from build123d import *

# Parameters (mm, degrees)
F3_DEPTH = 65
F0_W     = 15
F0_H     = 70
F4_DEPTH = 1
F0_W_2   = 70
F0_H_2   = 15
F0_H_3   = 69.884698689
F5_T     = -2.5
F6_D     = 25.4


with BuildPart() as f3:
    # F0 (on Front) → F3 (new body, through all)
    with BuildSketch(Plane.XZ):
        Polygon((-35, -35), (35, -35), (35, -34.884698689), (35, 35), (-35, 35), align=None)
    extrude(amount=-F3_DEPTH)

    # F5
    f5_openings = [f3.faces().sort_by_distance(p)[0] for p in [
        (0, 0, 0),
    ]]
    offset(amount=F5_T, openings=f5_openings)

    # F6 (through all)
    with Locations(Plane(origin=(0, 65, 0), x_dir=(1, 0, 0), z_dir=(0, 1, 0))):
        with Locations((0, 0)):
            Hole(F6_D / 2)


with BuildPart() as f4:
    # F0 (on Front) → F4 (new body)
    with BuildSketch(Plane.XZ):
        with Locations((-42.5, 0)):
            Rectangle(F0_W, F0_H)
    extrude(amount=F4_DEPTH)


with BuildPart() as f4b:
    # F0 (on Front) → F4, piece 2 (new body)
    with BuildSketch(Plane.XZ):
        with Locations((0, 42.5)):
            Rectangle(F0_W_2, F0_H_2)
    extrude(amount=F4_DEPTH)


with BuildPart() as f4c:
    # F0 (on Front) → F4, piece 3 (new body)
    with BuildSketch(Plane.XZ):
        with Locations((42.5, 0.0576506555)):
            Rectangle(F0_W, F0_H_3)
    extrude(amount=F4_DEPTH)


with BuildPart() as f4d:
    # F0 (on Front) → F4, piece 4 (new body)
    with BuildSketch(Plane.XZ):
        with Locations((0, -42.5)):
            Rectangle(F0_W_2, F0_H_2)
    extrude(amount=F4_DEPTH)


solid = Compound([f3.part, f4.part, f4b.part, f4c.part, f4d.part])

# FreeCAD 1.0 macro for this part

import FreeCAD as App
import Part
import Sketcher
from FreeCAD import Vector


def faces_at(feature, points):
    """Names of the faces that lie closest to the given points."""
    faces = feature.Shape.Faces
    near = lambda p: min(range(len(faces)), key=lambda i: faces[i].distToShape(Part.Vertex(*p))[0])
    return sorted({f"Face{near(p) + 1}" for p in points})


def add_polygon(sketch, points):
    """Adds a closed chain of lines whose ends are joined by coincident constraints."""
    first, n = sketch.GeometryCount, len(points)
    for a, b in zip(points, points[1:] + points[:1]):
        sketch.addGeometry(Part.LineSegment(App.Vector(*a, 0), App.Vector(*b, 0)), False)
    for i in range(n):
        sketch.addConstraint(Sketcher.Constraint("Coincident", first + i, 2, first + (i + 1) % n, 1))

doc = App.newDocument("Part")
body = doc.addObject("PartDesign::Body", "Body")

# Sketch on XZ plane
sketch1 = body.newObject("Sketcher::SketchObject", "Sketch")
sketch1.AttachmentSupport = (doc.getObject("XZ_Plane"), [""])
sketch1.MapMode = "FlatFace"
add_polygon(sketch1, [(-35, -35), (35, -35), (35, 35), (-35, 35)])  # lines 0-3
sketch1.addConstraint(Sketcher.Constraint("Horizontal", 0))
sketch1.addConstraint(Sketcher.Constraint("Vertical", 1))
sketch1.addConstraint(Sketcher.Constraint("Horizontal", 2))
sketch1.addConstraint(Sketcher.Constraint("Vertical", 3))
sketch1.addConstraint(Sketcher.Constraint("Symmetric", 0, 2, 2, 2, -1, 1))
sketch1.addConstraint(Sketcher.Constraint("Equal", 2, 1))
sketch1.addConstraint(Sketcher.Constraint("DistanceX", 0, 1, 0, 2, 70.0))
pad1 = body.newObject("PartDesign::Pad", "Pad")
pad1.Profile = sketch1
pad1.Length = 65
pad1.Reversed = True
doc.recompute()

thickness = body.newObject("PartDesign::Thickness", "Thickness")
thickness.Base = (pad1, faces_at(pad1, [(0, 0, 0)]))
thickness.Value = 2.5
thickness.Reversed = True
thickness.Join = "Arc"

# Sketch on XZ plane
sketch2 = body.newObject("Sketcher::SketchObject", "Sketch001")
sketch2.AttachmentSupport = (doc.getObject("XZ_Plane"), [""])
sketch2.MapMode = "FlatFace"
sketch2.AttachmentOffset = App.Placement(Vector(0, 0, -65), App.Rotation())
sketch2.addGeometry(Part.Circle(Vector(0, 0, 0), Vector(0, 0, 1), 12.7), False)
sketch2.addConstraint(Sketcher.Constraint("Coincident", 0, 3, -1, 1))
sketch2.addConstraint(Sketcher.Constraint("Diameter", 0, 25.4))
doc.recompute()
hole = body.newObject("PartDesign::Hole", "Hole")
hole.Profile = sketch2
hole.ThreadType = "None"
hole.Diameter = 25.4
hole.DepthType = "ThroughAll"
hole.Reversed = True
body2 = doc.addObject("PartDesign::Body", "Body001")

# Sketch on XZ plane
sketch3 = body2.newObject("Sketcher::SketchObject", "Sketch002")
sketch3.AttachmentSupport = (doc.getObject("XZ_Plane001"), [""])
sketch3.MapMode = "FlatFace"
add_polygon(sketch3, [(-50, 35), (-50, -35), (-35, -35), (-35, 35)])  # lines 0-3
sketch3.addConstraint(Sketcher.Constraint("Vertical", 0))
sketch3.addConstraint(Sketcher.Constraint("Horizontal", 1))
sketch3.addConstraint(Sketcher.Constraint("Vertical", 2))
sketch3.addConstraint(Sketcher.Constraint("Horizontal", 3))
sketch3.addConstraint(Sketcher.Constraint("DistanceX", 1, 1, 1, 2, 15.0))
sketch3.addConstraint(Sketcher.Constraint("DistanceY", 0, 2, 0, 1, 70.0))
sketch3.addConstraint(Sketcher.Constraint("DistanceX", 0, 2, -1, 1, 50.0))
sketch3.addConstraint(Sketcher.Constraint("DistanceY", 0, 2, -1, 1, 35.0))
pad2 = body2.newObject("PartDesign::Pad", "Pad001")
pad2.Profile = sketch3
pad2.Length = 1
body3 = doc.addObject("PartDesign::Body", "Body002")

# Sketch on XZ plane
sketch4 = body3.newObject("Sketcher::SketchObject", "Sketch003")
sketch4.AttachmentSupport = (doc.getObject("XZ_Plane002"), [""])
sketch4.MapMode = "FlatFace"
add_polygon(sketch4, [(-35, 50), (-35, 35), (35, 35), (35, 50)])  # lines 0-3
sketch4.addConstraint(Sketcher.Constraint("Vertical", 0))
sketch4.addConstraint(Sketcher.Constraint("Horizontal", 1))
sketch4.addConstraint(Sketcher.Constraint("Vertical", 2))
sketch4.addConstraint(Sketcher.Constraint("Horizontal", 3))
sketch4.addConstraint(Sketcher.Constraint("DistanceX", 1, 1, 1, 2, 70.0))
sketch4.addConstraint(Sketcher.Constraint("DistanceY", 0, 2, 0, 1, 15.0))
sketch4.addConstraint(Sketcher.Constraint("DistanceX", 0, 2, -1, 1, 35.0))
sketch4.addConstraint(Sketcher.Constraint("DistanceY", -1, 1, 0, 2, 35.0))
pad3 = body3.newObject("PartDesign::Pad", "Pad002")
pad3.Profile = sketch4
pad3.Length = 1
body4 = doc.addObject("PartDesign::Body", "Body003")

# Sketch on XZ plane
sketch5 = body4.newObject("Sketcher::SketchObject", "Sketch004")
sketch5.AttachmentSupport = (doc.getObject("XZ_Plane003"), [""])
sketch5.MapMode = "FlatFace"
add_polygon(sketch5, [(35, 35), (35, -34.884699), (50, -34.884699), (50, 35)])  # lines 0-3
sketch5.addConstraint(Sketcher.Constraint("Vertical", 0))
sketch5.addConstraint(Sketcher.Constraint("Horizontal", 1))
sketch5.addConstraint(Sketcher.Constraint("Vertical", 2))
sketch5.addConstraint(Sketcher.Constraint("Horizontal", 3))
sketch5.addConstraint(Sketcher.Constraint("DistanceX", 1, 1, 1, 2, 15.0))
sketch5.addConstraint(Sketcher.Constraint("DistanceX", -1, 1, 0, 2, 35.0))
sketch5.addConstraint(Sketcher.Constraint("DistanceY", -1, 1, 2, 2, 35.0))
sketch5.addConstraint(Sketcher.Constraint("DistanceY", 0, 2, 0, 1, 69.884699))
pad4 = body4.newObject("PartDesign::Pad", "Pad003")
pad4.Profile = sketch5
pad4.Length = 1
body5 = doc.addObject("PartDesign::Body", "Body004")

# Sketch on XZ plane
sketch6 = body5.newObject("Sketcher::SketchObject", "Sketch005")
sketch6.AttachmentSupport = (doc.getObject("XZ_Plane004"), [""])
sketch6.MapMode = "FlatFace"
add_polygon(sketch6, [(-35, -35), (-35, -50), (35, -50), (35, -35)])  # lines 0-3
sketch6.addConstraint(Sketcher.Constraint("Vertical", 0))
sketch6.addConstraint(Sketcher.Constraint("Horizontal", 1))
sketch6.addConstraint(Sketcher.Constraint("Vertical", 2))
sketch6.addConstraint(Sketcher.Constraint("Horizontal", 3))
sketch6.addConstraint(Sketcher.Constraint("DistanceX", 1, 1, 1, 2, 70.0))
sketch6.addConstraint(Sketcher.Constraint("DistanceY", 0, 2, 0, 1, 15.0))
sketch6.addConstraint(Sketcher.Constraint("DistanceX", 0, 2, -1, 1, 35.0))
sketch6.addConstraint(Sketcher.Constraint("DistanceY", 0, 2, -1, 1, 50.0))
pad5 = body5.newObject("PartDesign::Pad", "Pad004")
pad5.Profile = sketch6
pad5.Length = 1

doc.recompute()
